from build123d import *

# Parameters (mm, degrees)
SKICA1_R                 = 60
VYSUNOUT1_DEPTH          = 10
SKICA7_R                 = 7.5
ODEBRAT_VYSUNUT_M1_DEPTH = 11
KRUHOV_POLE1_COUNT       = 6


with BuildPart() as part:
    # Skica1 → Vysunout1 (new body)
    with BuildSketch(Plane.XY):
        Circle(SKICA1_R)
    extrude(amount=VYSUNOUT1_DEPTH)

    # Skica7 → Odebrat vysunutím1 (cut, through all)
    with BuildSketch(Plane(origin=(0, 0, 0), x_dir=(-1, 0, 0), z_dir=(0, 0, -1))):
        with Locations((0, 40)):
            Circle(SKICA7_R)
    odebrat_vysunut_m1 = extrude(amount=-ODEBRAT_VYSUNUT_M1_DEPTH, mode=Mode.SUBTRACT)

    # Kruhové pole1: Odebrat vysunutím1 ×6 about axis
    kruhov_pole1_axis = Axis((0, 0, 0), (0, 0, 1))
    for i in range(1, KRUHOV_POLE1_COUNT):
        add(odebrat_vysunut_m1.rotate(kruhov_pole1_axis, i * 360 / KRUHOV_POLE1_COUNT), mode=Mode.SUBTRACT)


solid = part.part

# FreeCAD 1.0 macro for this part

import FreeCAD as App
import Part
import Sketcher
from FreeCAD import Vector
Q = App.Units.Quantity

doc = App.newDocument("Part")
body = doc.addObject("PartDesign::Body", "Body")

# Sketch on XY plane
sketch1 = body.newObject("Sketcher::SketchObject", "Sketch")
sketch1.AttachmentSupport = (doc.getObject("XY_Plane"), [""])
sketch1.MapMode = "FlatFace"
sketch1.addGeometry(Part.Circle(Vector(0, 0, 0), Vector(0, 0, 1), 60), False)
sketch1.addConstraint(Sketcher.Constraint("Coincident", 0, 3, -1, 1))
sketch1.addConstraint(Sketcher.Constraint("Diameter", 0, Q("120 mm")))
pad1 = body.newObject("PartDesign::Pad", "Pad")
pad1.Profile = sketch1
pad1.Length = 10

# Sketch on XY plane
sketch2 = body.newObject("Sketcher::SketchObject", "Sketch001")
sketch2.AttachmentSupport = (doc.getObject("XY_Plane"), [""])
sketch2.MapMode = "FlatFace"
sketch2.addGeometry(Part.Circle(Vector(0, 40, 0), Vector(0, 0, 1), 7.5), False)
sketch2.addConstraint(Sketcher.Constraint("PointOnObject", 0, 3, -2))
sketch2.addConstraint(Sketcher.Constraint("Diameter", 0, Q("15 mm")))
sketch2.addConstraint(Sketcher.Constraint("DistanceY", -1, 1, 0, 3, Q("40 mm")))
pocket1 = body.newObject("PartDesign::Pocket", "Pocket")
pocket1.Profile = sketch2
pocket1.Type = "ThroughAll"
pocket1.Reversed = True
doc.recompute()

polarpattern = body.newObject("PartDesign::PolarPattern", "PolarPattern")
polarpattern.Originals = [pocket1]
polarpattern.Axis = (doc.getObject("Z_Axis"), [""])
polarpattern.Angle = 360
polarpattern.Occurrences = 6
body.Tip = polarpattern

doc.recompute()
